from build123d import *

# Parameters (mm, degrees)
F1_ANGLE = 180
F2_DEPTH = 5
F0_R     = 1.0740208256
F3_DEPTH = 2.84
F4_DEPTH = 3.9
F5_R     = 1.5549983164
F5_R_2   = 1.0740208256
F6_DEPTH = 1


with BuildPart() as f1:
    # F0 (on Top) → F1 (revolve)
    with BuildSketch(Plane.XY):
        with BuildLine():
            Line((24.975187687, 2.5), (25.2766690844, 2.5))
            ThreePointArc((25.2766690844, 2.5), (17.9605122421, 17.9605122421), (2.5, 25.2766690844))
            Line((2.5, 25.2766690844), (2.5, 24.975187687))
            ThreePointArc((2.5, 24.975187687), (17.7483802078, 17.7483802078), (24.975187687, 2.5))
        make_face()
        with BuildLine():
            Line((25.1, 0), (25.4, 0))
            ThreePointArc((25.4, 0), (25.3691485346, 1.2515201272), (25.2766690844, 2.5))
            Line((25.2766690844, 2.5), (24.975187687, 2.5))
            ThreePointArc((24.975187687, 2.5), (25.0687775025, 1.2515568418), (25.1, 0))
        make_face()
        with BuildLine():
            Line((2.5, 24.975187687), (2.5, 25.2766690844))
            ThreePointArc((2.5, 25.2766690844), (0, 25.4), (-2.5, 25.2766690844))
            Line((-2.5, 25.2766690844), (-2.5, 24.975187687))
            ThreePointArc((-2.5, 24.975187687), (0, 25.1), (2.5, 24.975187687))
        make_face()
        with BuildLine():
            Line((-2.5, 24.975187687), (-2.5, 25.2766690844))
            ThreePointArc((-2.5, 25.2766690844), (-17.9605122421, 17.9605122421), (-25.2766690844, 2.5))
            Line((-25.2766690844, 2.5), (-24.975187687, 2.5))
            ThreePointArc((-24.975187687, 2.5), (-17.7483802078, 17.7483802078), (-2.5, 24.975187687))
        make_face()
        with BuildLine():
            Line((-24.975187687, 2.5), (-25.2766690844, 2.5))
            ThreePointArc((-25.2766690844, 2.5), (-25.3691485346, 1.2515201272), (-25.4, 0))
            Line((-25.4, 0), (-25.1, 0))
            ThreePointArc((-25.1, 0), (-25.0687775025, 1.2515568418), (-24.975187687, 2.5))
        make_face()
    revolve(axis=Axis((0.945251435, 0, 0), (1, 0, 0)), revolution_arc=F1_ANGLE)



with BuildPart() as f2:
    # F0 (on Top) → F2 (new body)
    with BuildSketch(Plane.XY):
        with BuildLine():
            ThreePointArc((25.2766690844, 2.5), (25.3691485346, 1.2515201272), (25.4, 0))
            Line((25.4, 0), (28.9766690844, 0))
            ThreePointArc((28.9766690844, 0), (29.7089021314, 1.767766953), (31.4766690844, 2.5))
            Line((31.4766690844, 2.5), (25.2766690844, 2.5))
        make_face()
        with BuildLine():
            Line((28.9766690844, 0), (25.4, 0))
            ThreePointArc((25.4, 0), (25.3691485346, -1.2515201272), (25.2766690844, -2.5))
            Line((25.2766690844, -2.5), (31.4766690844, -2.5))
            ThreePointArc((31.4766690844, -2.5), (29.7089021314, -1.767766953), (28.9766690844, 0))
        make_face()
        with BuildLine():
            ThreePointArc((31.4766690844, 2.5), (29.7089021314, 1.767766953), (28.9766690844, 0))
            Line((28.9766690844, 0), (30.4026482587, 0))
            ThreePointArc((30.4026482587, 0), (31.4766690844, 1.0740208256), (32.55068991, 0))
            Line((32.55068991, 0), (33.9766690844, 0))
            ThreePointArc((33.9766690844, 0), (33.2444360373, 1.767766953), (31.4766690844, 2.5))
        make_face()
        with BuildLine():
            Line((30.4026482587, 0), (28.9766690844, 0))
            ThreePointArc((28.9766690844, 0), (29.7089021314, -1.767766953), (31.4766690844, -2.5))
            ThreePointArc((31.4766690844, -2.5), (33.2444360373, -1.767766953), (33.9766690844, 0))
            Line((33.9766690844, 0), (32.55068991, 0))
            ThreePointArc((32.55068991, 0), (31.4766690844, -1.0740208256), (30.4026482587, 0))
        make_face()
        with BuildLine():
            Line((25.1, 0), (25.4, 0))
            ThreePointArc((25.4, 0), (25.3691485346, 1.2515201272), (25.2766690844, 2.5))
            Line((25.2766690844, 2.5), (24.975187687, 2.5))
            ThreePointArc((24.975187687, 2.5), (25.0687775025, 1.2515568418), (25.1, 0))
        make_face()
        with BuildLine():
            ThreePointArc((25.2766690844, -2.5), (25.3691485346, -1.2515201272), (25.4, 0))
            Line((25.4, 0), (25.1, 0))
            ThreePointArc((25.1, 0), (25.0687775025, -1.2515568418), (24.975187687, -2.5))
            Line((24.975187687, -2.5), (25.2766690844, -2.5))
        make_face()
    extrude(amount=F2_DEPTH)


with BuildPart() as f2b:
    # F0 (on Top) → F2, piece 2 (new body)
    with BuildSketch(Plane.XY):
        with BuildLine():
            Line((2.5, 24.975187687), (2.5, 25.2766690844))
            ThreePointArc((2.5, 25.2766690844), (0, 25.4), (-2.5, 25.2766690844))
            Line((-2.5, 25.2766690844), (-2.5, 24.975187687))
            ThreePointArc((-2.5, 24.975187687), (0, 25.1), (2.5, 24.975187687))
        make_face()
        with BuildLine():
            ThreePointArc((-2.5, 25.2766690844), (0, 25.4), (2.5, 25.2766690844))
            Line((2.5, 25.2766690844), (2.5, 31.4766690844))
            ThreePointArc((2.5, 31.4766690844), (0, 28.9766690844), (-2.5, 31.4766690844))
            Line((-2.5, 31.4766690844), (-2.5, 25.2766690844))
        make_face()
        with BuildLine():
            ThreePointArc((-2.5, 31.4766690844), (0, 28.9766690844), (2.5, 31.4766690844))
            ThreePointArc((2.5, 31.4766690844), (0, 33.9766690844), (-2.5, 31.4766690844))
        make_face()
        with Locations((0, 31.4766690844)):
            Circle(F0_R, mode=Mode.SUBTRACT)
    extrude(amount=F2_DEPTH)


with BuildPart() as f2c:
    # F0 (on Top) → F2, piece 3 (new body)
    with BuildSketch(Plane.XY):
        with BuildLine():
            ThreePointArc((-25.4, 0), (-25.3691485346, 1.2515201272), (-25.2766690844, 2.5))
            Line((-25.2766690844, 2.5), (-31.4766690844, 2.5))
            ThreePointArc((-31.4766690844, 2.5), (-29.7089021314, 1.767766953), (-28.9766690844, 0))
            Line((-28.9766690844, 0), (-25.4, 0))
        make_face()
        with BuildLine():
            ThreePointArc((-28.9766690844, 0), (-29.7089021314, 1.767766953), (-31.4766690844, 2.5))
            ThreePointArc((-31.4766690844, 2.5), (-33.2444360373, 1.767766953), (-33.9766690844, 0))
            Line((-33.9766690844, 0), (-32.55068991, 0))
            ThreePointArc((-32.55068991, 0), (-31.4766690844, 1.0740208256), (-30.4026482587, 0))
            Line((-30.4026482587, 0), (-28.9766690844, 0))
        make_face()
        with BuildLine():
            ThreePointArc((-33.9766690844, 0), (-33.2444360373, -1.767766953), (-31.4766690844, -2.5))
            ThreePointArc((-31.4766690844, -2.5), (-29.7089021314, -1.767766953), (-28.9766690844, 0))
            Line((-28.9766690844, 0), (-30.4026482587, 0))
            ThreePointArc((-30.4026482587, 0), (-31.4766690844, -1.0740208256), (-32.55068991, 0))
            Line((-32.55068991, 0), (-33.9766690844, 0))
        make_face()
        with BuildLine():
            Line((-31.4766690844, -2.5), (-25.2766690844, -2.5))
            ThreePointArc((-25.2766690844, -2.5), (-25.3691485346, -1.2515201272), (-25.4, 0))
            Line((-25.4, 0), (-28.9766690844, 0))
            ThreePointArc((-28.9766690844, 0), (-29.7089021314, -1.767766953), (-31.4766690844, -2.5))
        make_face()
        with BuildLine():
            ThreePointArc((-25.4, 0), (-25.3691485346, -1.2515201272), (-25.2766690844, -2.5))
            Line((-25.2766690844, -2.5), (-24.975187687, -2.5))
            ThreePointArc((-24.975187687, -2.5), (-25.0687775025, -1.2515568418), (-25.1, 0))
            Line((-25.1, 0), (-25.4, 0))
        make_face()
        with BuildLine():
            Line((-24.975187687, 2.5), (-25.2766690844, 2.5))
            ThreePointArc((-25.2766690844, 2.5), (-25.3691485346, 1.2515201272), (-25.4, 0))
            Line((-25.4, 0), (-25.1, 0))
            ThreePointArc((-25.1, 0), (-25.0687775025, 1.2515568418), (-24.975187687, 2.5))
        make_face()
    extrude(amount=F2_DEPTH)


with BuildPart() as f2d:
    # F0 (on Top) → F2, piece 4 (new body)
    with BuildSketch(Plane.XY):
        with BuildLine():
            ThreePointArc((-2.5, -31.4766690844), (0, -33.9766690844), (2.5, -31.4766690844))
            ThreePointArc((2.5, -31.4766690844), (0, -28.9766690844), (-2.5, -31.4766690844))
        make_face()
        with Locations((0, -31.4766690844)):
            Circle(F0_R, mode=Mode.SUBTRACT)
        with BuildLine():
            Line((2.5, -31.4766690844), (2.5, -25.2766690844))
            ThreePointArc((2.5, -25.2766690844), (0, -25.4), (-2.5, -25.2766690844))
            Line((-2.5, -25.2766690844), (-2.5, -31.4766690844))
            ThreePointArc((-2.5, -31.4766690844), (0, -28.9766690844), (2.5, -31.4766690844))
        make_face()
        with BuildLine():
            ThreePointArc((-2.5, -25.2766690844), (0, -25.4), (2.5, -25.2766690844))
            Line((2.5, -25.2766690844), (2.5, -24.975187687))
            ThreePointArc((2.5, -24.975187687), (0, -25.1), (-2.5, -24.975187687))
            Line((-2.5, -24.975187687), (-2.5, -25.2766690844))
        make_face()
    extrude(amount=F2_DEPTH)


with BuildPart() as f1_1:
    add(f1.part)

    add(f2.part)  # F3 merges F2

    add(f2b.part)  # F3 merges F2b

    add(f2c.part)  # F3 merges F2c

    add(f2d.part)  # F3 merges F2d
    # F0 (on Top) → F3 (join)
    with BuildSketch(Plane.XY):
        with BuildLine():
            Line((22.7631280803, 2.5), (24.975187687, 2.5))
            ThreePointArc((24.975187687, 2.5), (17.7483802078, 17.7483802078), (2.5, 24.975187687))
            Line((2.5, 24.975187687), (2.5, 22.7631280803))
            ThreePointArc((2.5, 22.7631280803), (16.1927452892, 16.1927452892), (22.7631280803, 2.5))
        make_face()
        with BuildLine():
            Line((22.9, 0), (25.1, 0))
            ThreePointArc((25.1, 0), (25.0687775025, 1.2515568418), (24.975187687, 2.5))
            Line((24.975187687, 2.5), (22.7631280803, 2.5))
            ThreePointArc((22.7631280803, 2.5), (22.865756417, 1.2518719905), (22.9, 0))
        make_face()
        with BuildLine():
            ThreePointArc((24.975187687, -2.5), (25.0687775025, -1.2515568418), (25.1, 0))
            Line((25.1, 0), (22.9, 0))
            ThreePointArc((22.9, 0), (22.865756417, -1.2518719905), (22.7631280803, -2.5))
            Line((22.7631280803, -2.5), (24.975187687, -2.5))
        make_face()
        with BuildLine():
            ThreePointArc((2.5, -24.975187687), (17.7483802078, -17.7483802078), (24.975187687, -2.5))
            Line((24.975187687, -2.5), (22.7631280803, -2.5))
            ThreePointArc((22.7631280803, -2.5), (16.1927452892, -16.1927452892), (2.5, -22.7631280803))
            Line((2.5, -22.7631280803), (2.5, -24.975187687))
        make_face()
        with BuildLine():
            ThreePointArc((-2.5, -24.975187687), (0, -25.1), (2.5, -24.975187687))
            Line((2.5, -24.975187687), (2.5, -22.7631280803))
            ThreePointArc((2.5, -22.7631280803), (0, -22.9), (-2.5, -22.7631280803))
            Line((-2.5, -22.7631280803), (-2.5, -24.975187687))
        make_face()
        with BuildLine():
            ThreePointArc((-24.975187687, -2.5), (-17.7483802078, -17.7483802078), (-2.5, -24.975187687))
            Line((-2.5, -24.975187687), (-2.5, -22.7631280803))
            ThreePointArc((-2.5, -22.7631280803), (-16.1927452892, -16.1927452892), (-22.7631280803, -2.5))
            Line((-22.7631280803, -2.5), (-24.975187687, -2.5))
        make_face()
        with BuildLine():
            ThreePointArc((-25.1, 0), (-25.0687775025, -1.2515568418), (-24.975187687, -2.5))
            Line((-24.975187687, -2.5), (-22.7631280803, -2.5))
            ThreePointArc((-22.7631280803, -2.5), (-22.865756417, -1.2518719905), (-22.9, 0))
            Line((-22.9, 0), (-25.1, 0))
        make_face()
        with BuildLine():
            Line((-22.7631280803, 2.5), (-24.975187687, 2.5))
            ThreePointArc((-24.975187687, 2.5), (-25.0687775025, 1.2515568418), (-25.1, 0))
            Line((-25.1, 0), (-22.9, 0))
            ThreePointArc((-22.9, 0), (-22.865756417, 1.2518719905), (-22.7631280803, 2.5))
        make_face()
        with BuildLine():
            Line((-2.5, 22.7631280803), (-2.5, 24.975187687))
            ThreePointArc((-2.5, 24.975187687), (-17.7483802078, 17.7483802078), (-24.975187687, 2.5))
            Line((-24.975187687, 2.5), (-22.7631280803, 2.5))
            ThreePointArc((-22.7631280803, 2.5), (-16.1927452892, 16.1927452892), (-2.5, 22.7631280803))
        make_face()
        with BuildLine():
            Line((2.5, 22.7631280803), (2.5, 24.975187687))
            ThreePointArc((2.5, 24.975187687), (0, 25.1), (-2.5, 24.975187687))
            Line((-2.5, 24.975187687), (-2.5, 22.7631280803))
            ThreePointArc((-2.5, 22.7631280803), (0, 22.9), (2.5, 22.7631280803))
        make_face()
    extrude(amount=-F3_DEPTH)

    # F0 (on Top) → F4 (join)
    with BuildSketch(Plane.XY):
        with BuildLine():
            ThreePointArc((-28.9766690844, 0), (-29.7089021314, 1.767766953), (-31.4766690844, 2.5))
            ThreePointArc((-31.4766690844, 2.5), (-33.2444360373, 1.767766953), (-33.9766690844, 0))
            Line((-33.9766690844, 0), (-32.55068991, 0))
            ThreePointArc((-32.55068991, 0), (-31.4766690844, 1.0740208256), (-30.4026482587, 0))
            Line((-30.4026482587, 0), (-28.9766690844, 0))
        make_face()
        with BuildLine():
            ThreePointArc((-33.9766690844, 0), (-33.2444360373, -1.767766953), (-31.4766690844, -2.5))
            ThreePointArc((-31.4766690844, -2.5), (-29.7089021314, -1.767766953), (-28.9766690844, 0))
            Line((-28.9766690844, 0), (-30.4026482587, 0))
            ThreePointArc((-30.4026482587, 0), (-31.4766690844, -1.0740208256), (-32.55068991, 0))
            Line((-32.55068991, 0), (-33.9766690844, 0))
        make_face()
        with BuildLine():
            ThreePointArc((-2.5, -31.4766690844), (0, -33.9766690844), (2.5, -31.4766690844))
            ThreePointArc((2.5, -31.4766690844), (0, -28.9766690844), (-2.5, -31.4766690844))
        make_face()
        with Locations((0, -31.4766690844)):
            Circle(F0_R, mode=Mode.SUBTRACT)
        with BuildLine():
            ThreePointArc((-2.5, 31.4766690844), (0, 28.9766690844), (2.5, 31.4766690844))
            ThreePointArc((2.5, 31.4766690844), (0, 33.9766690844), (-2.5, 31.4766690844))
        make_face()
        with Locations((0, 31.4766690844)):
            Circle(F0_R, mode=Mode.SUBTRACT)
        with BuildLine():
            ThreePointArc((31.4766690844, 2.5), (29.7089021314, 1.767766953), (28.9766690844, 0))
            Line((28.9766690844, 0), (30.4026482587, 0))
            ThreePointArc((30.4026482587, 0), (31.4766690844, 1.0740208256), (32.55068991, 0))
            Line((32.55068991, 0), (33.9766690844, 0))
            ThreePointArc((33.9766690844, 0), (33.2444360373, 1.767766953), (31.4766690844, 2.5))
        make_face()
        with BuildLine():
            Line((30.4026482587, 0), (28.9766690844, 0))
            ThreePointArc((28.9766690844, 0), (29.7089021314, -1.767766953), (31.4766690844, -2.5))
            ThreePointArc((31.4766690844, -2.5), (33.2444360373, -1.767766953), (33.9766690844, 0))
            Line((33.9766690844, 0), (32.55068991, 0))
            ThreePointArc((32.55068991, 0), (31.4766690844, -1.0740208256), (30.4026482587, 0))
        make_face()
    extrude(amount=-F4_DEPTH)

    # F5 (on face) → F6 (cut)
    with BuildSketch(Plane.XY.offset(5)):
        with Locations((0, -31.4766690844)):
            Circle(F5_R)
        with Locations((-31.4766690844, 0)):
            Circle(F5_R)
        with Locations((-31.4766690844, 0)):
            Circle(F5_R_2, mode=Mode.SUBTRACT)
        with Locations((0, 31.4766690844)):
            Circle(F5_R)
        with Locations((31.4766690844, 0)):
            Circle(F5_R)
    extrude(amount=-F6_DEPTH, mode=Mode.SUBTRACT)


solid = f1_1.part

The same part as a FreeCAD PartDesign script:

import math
import FreeCAD as App
import Part
import Sketcher
from FreeCAD import Vector
Q = App.Units.Quantity

doc = App.newDocument("Part")
body = doc.addObject("PartDesign::Body", "Body")

# Sketch on XY plane
sketch1 = body.newObject("Sketcher::SketchObject", "Sketch")
sketch1.AttachmentSupport = (doc.getObject("XY_Plane"), [""])
sketch1.MapMode = "FlatFace"
sketch1.addGeometry(Part.ArcOfCircle(Part.Circle(Vector(0, 0, 0), Vector(0, 0, 1), 25.4), math.radians(6), math.radians(84)), False)
sketch1.addGeometry(Part.ArcOfCircle(Part.Circle(Vector(0, 0, 0), Vector(0, 0, 1), 25.4), math.radians(84.35), math.radians(95.65)), False)
sketch1.addGeometry(Part.ArcOfCircle(Part.Circle(Vector(0, 0, 0), Vector(0, 0, 1), 25.4), math.radians(96), math.radians(174)), False)
sketch1.addGeometry(Part.ArcOfCircle(Part.Circle(Vector(0, 0, 0), Vector(0, 0, 1), 25.4), math.radians(174.35), math.radians(180)), False)
sketch1.addGeometry(Part.LineSegment(Vector(-25.4, 0, 0), Vector(-25.1, 0, 0)), False)
sketch1.addGeometry(Part.ArcOfCircle(Part.Circle(Vector(0, 0, 0), Vector(0, 0, 1), 25.1), math.radians(174.28), math.radians(180)), False)
sketch1.addGeometry(Part.ArcOfCircle(Part.Circle(Vector(0, 0, 0), Vector(0, 0, 1), 25.1), math.radians(96), math.radians(174)), False)
sketch1.addGeometry(Part.ArcOfCircle(Part.Circle(Vector(0, 0, 0), Vector(0, 0, 1), 25.1), math.radians(84.28), math.radians(95.72)), False)
sketch1.addGeometry(Part.ArcOfCircle(Part.Circle(Vector(0, 0, 0), Vector(0, 0, 1), 25.1), math.radians(6), math.radians(84)), False)
sketch1.addGeometry(Part.ArcOfCircle(Part.Circle(Vector(0, 0, 0), Vector(0, 0, 1), 25.1), math.radians(0), math.radians(5.72)), False)
sketch1.addGeometry(Part.LineSegment(Vector(25.1, 0, 0), Vector(25.4, 0, 0)), False)
sketch1.addGeometry(Part.ArcOfCircle(Part.Circle(Vector(0, 0, 0), Vector(0, 0, 1), 25.4), math.radians(0), math.radians(5.65)), False)
sketch1.addConstraint(Sketcher.Constraint("Tangent", 0, 2, 1, 1))
sketch1.addConstraint(Sketcher.Constraint("Tangent", 1, 2, 2, 1))
sketch1.addConstraint(Sketcher.Constraint("Tangent", 2, 2, 3, 1))
sketch1.addConstraint(Sketcher.Constraint("Coincident", 3, 2, 4, 1))
sketch1.addConstraint(Sketcher.Constraint("Coincident", 4, 2, 5, 2))
sketch1.addConstraint(Sketcher.Constraint("Tangent", 5, 1, 6, 2))
sketch1.addConstraint(Sketcher.Constraint("Tangent", 6, 1, 7, 2))
sketch1.addConstraint(Sketcher.Constraint("Tangent", 7, 1, 8, 2))
sketch1.addConstraint(Sketcher.Constraint("Tangent", 8, 1, 9, 2))
sketch1.addConstraint(Sketcher.Constraint("Coincident", 9, 1, 10, 1))
sketch1.addConstraint(Sketcher.Constraint("Coincident", 10, 2, 11, 1))
sketch1.addConstraint(Sketcher.Constraint("Tangent", 11, 2, 0, 1))
sketch1.addConstraint(Sketcher.Constraint("Horizontal", 4))
sketch1.addConstraint(Sketcher.Constraint("Horizontal", 10))
sketch1.addConstraint(Sketcher.Constraint("Coincident", 0, 3, -1, 1))
sketch1.addConstraint(Sketcher.Constraint("Coincident", 2, 3, -1, 1))
sketch1.addConstraint(Sketcher.Constraint("Coincident", 5, 3, -1, 1))
sketch1.addConstraint(Sketcher.Constraint("Coincident", 7, 3, -1, 1))
sketch1.addConstraint(Sketcher.Constraint("Coincident", 9, 3, -1, 1))
sketch1.addConstraint(Sketcher.Constraint("Equal", 2, 3))
sketch1.addConstraint(Sketcher.Constraint("Equal", 3, 11))
sketch1.addConstraint(Sketcher.Constraint("PointOnObject", 3, 2, -1))
sketch1.addConstraint(Sketcher.Constraint("PointOnObject", 9, 1, -1))
sketch1.addConstraint(Sketcher.Constraint("Horizontal", 0, 2, 1, 2))
sketch1.addConstraint(Sketcher.Constraint("Horizontal", 2, 2, 5, 1))
sketch1.addConstraint(Sketcher.Constraint("Horizontal", 6, 1, 7, 1))
sketch1.addConstraint(Sketcher.Constraint("Horizontal", 5, 1, 8, 1))
sketch1.addConstraint(Sketcher.Constraint("Horizontal", 8, 1, 11, 2))
sketch1.addConstraint(Sketcher.Constraint("Vertical", 1, 2, 6, 1))
sketch1.addConstraint(Sketcher.Constraint("Radius", 0, Q("25.4 mm")))
sketch1.addConstraint(Sketcher.Constraint("Radius", 5, Q("25.1 mm")))
sketch1.addConstraint(Sketcher.Constraint("DistanceX", 1, 2, 0, 2, Q("5 mm")))
sketch1.addConstraint(Sketcher.Constraint("DistanceY", -1, 1, 2, 2, Q("2.5 mm")))
revolution = body.newObject("PartDesign::Revolution", "Revolution")
revolution.Profile = sketch1
revolution.ReferenceAxis = (sketch1, ["H_Axis"])
revolution.Angle = 180
body2 = doc.addObject("PartDesign::Body", "Body001")

# Sketch on XY plane
sketch2 = body2.newObject("Sketcher::SketchObject", "Sketch001")
sketch2.AttachmentSupport = (doc.getObject("XY_Plane001"), [""])
sketch2.MapMode = "FlatFace"
sketch2.addGeometry(Part.ArcOfCircle(Part.Circle(Vector(31.5, 0, 0), Vector(0, 0, 1), 2.5), math.radians(-90), math.radians(0)), False)
sketch2.addGeometry(Part.ArcOfCircle(Part.Circle(Vector(31.5, 0, 0), Vector(0, 0, 1), 2.5), math.radians(0), math.radians(90)), False)
sketch2.addGeometry(Part.LineSegment(Vector(31.5, 2.5, 0), Vector(25, 2.5, 0)), False)
sketch2.addGeometry(Part.ArcOfCircle(Part.Circle(Vector(0, 0, 0), Vector(0, 0, 1), 25.1), math.radians(0), math.radians(5.72)), False)
sketch2.addGeometry(Part.ArcOfCircle(Part.Circle(Vector(0, 0, 0), Vector(0, 0, 1), 25.1), math.radians(-5.72), math.radians(0)), False)
sketch2.addGeometry(Part.LineSegment(Vector(25, -2.5, 0), Vector(31.5, -2.5, 0)), False)
sketch2.addGeometry(Part.ArcOfCircle(Part.Circle(Vector(31.5, 0, 0), Vector(0, 0, 1), 1.1), math.radians(0), math.radians(180)), False)
sketch2.addGeometry(Part.ArcOfCircle(Part.Circle(Vector(31.5, 0, 0), Vector(0, 0, 1), 1.1), math.radians(180), math.radians(360)), False)
sketch2.addConstraint(Sketcher.Constraint("Tangent", 0, 2, 1, 1))
sketch2.addConstraint(Sketcher.Constraint("Tangent", 1, 2, 2, 1))
sketch2.addConstraint(Sketcher.Constraint("Coincident", 2, 2, 3, 2))
sketch2.addConstraint(Sketcher.Constraint("Tangent", 3, 1, 4, 2))
sketch2.addConstraint(Sketcher.Constraint("Coincident", 4, 1, 5, 1))
sketch2.addConstraint(Sketcher.Constraint("Tangent", 5, 2, 0, 1))
sketch2.addConstraint(Sketcher.Constraint("Tangent", 6, 1, 7, 2))
sketch2.addConstraint(Sketcher.Constraint("Coincident", 7, 1, 6, 2))
sketch2.addConstraint(Sketcher.Constraint("Horizontal", 2))
sketch2.addConstraint(Sketcher.Constraint("Horizontal", 5))
sketch2.addConstraint(Sketcher.Constraint("Coincident", 3, 3, -1, 1))
sketch2.addConstraint(Sketcher.Constraint("Coincident", 6, 3, 0, 3))
sketch2.addConstraint(Sketcher.Constraint("Equal", 0, 1))
sketch2.addConstraint(Sketcher.Constraint("Equal", 3, 4))
sketch2.addConstraint(Sketcher.Constraint("PointOnObject", 0, 3, -1))
sketch2.addConstraint(Sketcher.Constraint("PointOnObject", 0, 2, -1))
sketch2.addConstraint(Sketcher.Constraint("PointOnObject", 3, 1, -1))
sketch2.addConstraint(Sketcher.Constraint("PointOnObject", 6, 1, -1))
sketch2.addConstraint(Sketcher.Constraint("PointOnObject", 7, 1, -1))
sketch2.addConstraint(Sketcher.Constraint("Radius", 0, Q("2.5 mm")))
sketch2.addConstraint(Sketcher.Constraint("Radius", 3, Q("25.1 mm")))
sketch2.addConstraint(Sketcher.Constraint("Radius", 6, Q("1.074021 mm")))
sketch2.addConstraint(Sketcher.Constraint("DistanceX", 2, 2, 2, 1, Q("6.501481 mm")))
pad1 = body2.newObject("PartDesign::Pad", "Pad")
pad1.Profile = sketch2
pad1.Length = 5
body3 = doc.addObject("PartDesign::Body", "Body002")

# Sketch on XY plane
sketch3 = body3.newObject("Sketcher::SketchObject", "Sketch002")
sketch3.AttachmentSupport = (doc.getObject("XY_Plane002"), [""])
sketch3.MapMode = "FlatFace"
sketch3.addGeometry(Part.LineSegment(Vector(2.5, 25, 0), Vector(2.5, 31.5, 0)), False)
sketch3.addGeometry(Part.ArcOfCircle(Part.Circle(Vector(0, 31.5, 0), Vector(0, 0, 1), 2.5), math.radians(0), math.radians(180)), False)
sketch3.addGeometry(Part.LineSegment(Vector(-2.5, 31.5, 0), Vector(-2.5, 25, 0)), False)
sketch3.addGeometry(Part.ArcOfCircle(Part.Circle(Vector(0, 0, 0), Vector(0, 0, 1), 25.1), math.radians(84.28), math.radians(95.72)), False)
sketch3.addGeometry(Part.Circle(Vector(0, 31.5, 0), Vector(0, 0, 1), 1.1), False)
sketch3.addConstraint(Sketcher.Constraint("Tangent", 0, 2, 1, 1))
sketch3.addConstraint(Sketcher.Constraint("Tangent", 1, 2, 2, 1))
sketch3.addConstraint(Sketcher.Constraint("Coincident", 2, 2, 3, 2))
sketch3.addConstraint(Sketcher.Constraint("Coincident", 3, 1, 0, 1))
sketch3.addConstraint(Sketcher.Constraint("Vertical", 0))
sketch3.addConstraint(Sketcher.Constraint("Vertical", 2))
sketch3.addConstraint(Sketcher.Constraint("Coincident", 3, 3, -1, 1))
sketch3.addConstraint(Sketcher.Constraint("Coincident", 4, 3, 1, 3))
sketch3.addConstraint(Sketcher.Constraint("PointOnObject", 1, 3, -2))
sketch3.addConstraint(Sketcher.Constraint("Radius", 1, Q("2.5 mm")))
sketch3.addConstraint(Sketcher.Constraint("Radius", 3, Q("25.1 mm")))
sketch3.addConstraint(Sketcher.Constraint("Diameter", 4, Q("2.148042 mm")))
sketch3.addConstraint(Sketcher.Constraint("DistanceY", 0, 1, 0, 2, Q("6.501481 mm")))
pad2 = body3.newObject("PartDesign::Pad", "Pad001")
pad2.Profile = sketch3
pad2.Length = 5
body4 = doc.addObject("PartDesign::Body", "Body003")

# Sketch on XY plane
sketch4 = body4.newObject("Sketcher::SketchObject", "Sketch003")
sketch4.AttachmentSupport = (doc.getObject("XY_Plane003"), [""])
sketch4.MapMode = "FlatFace"
sketch4.addGeometry(Part.ArcOfCircle(Part.Circle(Vector(-31.5, 0, 0), Vector(0, 0, 1), 2.5), math.radians(90), math.radians(180)), False)
sketch4.addGeometry(Part.ArcOfCircle(Part.Circle(Vector(-31.5, 0, 0), Vector(0, 0, 1), 2.5), math.radians(180), math.radians(270)), False)
sketch4.addGeometry(Part.LineSegment(Vector(-31.5, -2.5, 0), Vector(-25, -2.5, 0)), False)
sketch4.addGeometry(Part.ArcOfCircle(Part.Circle(Vector(0, 0, 0), Vector(0, 0, 1), 25.1), math.radians(-180), math.radians(-174.28)), False)
sketch4.addGeometry(Part.ArcOfCircle(Part.Circle(Vector(0, 0, 0), Vector(0, 0, 1), 25.1), math.radians(174.28), math.radians(180)), False)
sketch4.addGeometry(Part.LineSegment(Vector(-25, 2.5, 0), Vector(-31.5, 2.5, 0)), False)
sketch4.addGeometry(Part.ArcOfCircle(Part.Circle(Vector(-31.5, 0, 0), Vector(0, 0, 1), 1.1), math.radians(0), math.radians(180)), False)
sketch4.addGeometry(Part.ArcOfCircle(Part.Circle(Vector(-31.5, 0, 0), Vector(0, 0, 1), 1.1), math.radians(180), math.radians(360)), False)
sketch4.addConstraint(Sketcher.Constraint("Tangent", 0, 2, 1, 1))
sketch4.addConstraint(Sketcher.Constraint("Tangent", 1, 2, 2, 1))
sketch4.addConstraint(Sketcher.Constraint("Coincident", 2, 2, 3, 2))
sketch4.addConstraint(Sketcher.Constraint("Tangent", 3, 1, 4, 2))
sketch4.addConstraint(Sketcher.Constraint("Coincident", 4, 1, 5, 1))
sketch4.addConstraint(Sketcher.Constraint("Tangent", 5, 2, 0, 1))
sketch4.addConstraint(Sketcher.Constraint("Tangent", 6, 1, 7, 2))
sketch4.addConstraint(Sketcher.Constraint("Coincident", 7, 1, 6, 2))
sketch4.addConstraint(Sketcher.Constraint("Horizontal", 2))
sketch4.addConstraint(Sketcher.Constraint("Horizontal", 5))
sketch4.addConstraint(Sketcher.Constraint("Coincident", 3, 3, -1, 1))
sketch4.addConstraint(Sketcher.Constraint("Coincident", 6, 3, 0, 3))
sketch4.addConstraint(Sketcher.Constraint("Equal", 0, 1))
sketch4.addConstraint(Sketcher.Constraint("Equal", 3, 4))
sketch4.addConstraint(Sketcher.Constraint("PointOnObject", 0, 3, -1))
sketch4.addConstraint(Sketcher.Constraint("PointOnObject", 0, 2, -1))
sketch4.addConstraint(Sketcher.Constraint("PointOnObject", 3, 1, -1))
sketch4.addConstraint(Sketcher.Constraint("PointOnObject", 6, 1, -1))
sketch4.addConstraint(Sketcher.Constraint("PointOnObject", 7, 1, -1))
sketch4.addConstraint(Sketcher.Constraint("Radius", 0, Q("2.5 mm")))
sketch4.addConstraint(Sketcher.Constraint("Radius", 3, Q("25.1 mm")))
sketch4.addConstraint(Sketcher.Constraint("Radius", 6, Q("1.074021 mm")))
sketch4.addConstraint(Sketcher.Constraint("DistanceX", 2, 1, 2, 2, Q("6.501481 mm")))
pad3 = body4.newObject("PartDesign::Pad", "Pad002")
pad3.Profile = sketch4
pad3.Length = 5
body5 = doc.addObject("PartDesign::Body", "Body004")

# Sketch on XY plane
sketch5 = body5.newObject("Sketcher::SketchObject", "Sketch004")
sketch5.AttachmentSupport = (doc.getObject("XY_Plane004"), [""])
sketch5.MapMode = "FlatFace"
sketch5.addGeometry(Part.ArcOfCircle(Part.Circle(Vector(0, -31.5, 0), Vector(0, 0, 1), 2.5), math.radians(180), math.radians(360)), False)
sketch5.addGeometry(Part.LineSegment(Vector(2.5, -31.5, 0), Vector(2.5, -25, 0)), False)
sketch5.addGeometry(Part.ArcOfCircle(Part.Circle(Vector(0, 0, 0), Vector(0, 0, 1), 25.1), math.radians(-95.72), math.radians(-84.28)), False)
sketch5.addGeometry(Part.LineSegment(Vector(-2.5, -25, 0), Vector(-2.5, -31.5, 0)), False)
sketch5.addGeometry(Part.Circle(Vector(0, -31.5, 0), Vector(0, 0, 1), 1.1), False)
sketch5.addConstraint(Sketcher.Constraint("Tangent", 0, 2, 1, 1))
sketch5.addConstraint(Sketcher.Constraint("Coincident", 1, 2, 2, 2))
sketch5.addConstraint(Sketcher.Constraint("Coincident", 2, 1, 3, 1))
sketch5.addConstraint(Sketcher.Constraint("Tangent", 3, 2, 0, 1))
sketch5.addConstraint(Sketcher.Constraint("Vertical", 1))
sketch5.addConstraint(Sketcher.Constraint("Vertical", 3))
sketch5.addConstraint(Sketcher.Constraint("Coincident", 2, 3, -1, 1))
sketch5.addConstraint(Sketcher.Constraint("Coincident", 4, 3, 0, 3))
sketch5.addConstraint(Sketcher.Constraint("PointOnObject", 0, 3, -2))
sketch5.addConstraint(Sketcher.Constraint("Radius", 0, Q("2.5 mm")))
sketch5.addConstraint(Sketcher.Constraint("Radius", 2, Q("25.1 mm")))
sketch5.addConstraint(Sketcher.Constraint("Diameter", 4, Q("2.148042 mm")))
sketch5.addConstraint(Sketcher.Constraint("DistanceY", 1, 1, 1, 2, Q("6.501481 mm")))
pad4 = body5.newObject("PartDesign::Pad", "Pad003")
pad4.Profile = sketch5
pad4.Length = 5
body.AllowCompound = True
doc.recompute()

boolean = body.newObject("PartDesign::Boolean", "Boolean")
boolean.Type = "Fuse"
boolean.addObjects([body2])
doc.recompute()

boolean2 = body.newObject("PartDesign::Boolean", "Boolean001")
boolean2.Type = "Fuse"
boolean2.addObjects([body3])
doc.recompute()

boolean3 = body.newObject("PartDesign::Boolean", "Boolean002")
boolean3.Type = "Fuse"
boolean3.addObjects([body4])
doc.recompute()

boolean4 = body.newObject("PartDesign::Boolean", "Boolean003")
boolean4.Type = "Fuse"
boolean4.addObjects([body5])

# Sketch on XY plane
sketch6 = body.newObject("Sketcher::SketchObject", "Sketch005")
sketch6.AttachmentSupport = (doc.getObject("XY_Plane"), [""])
sketch6.MapMode = "FlatFace"
sketch6.addGeometry(Part.ArcOfCircle(Part.Circle(Vector(0, 0, 0), Vector(0, 0, 1), 25.1), math.radians(6), math.radians(84)), False)
sketch6.addGeometry(Part.ArcOfCircle(Part.Circle(Vector(0, 0, 0), Vector(0, 0, 1), 25.1), math.radians(84.28), math.radians(95.72)), False)
sketch6.addGeometry(Part.ArcOfCircle(Part.Circle(Vector(0, 0, 0), Vector(0, 0, 1), 25.1), math.radians(96), math.radians(174)), False)
sketch6.addGeometry(Part.ArcOfCircle(Part.Circle(Vector(0, 0, 0), Vector(0, 0, 1), 25.1), math.radians(174.28), math.radians(180)), False)
sketch6.addGeometry(Part.ArcOfCircle(Part.Circle(Vector(0, 0, 0), Vector(0, 0, 1), 25.1), math.radians(-180), math.radians(-174.28)), False)
sketch6.addGeometry(Part.ArcOfCircle(Part.Circle(Vector(0, 0, 0), Vector(0, 0, 1), 25.1), math.radians(-174), math.radians(-96)), False)
sketch6.addGeometry(Part.ArcOfCircle(Part.Circle(Vector(0, 0, 0), Vector(0, 0, 1), 25.1), math.radians(-95.72), math.radians(-84.28)), False)
sketch6.addGeometry(Part.ArcOfCircle(Part.Circle(Vector(0, 0, 0), Vector(0, 0, 1), 25.1), math.radians(-84), math.radians(-6)), False)
sketch6.addGeometry(Part.ArcOfCircle(Part.Circle(Vector(0, 0, 0), Vector(0, 0, 1), 25.1), math.radians(-5.72), math.radians(0)), False)
sketch6.addGeometry(Part.ArcOfCircle(Part.Circle(Vector(0, 0, 0), Vector(0, 0, 1), 25.1), math.radians(0), math.radians(5.72)), False)
sketch6.addGeometry(Part.ArcOfCircle(Part.Circle(Vector(0, 0, 0), Vector(0, 0, 1), 22.9), math.radians(6), math.radians(84)), False)
sketch6.addGeometry(Part.ArcOfCircle(Part.Circle(Vector(0, 0, 0), Vector(0, 0, 1), 22.9), math.radians(0), math.radians(6.27)), False)
sketch6.addGeometry(Part.ArcOfCircle(Part.Circle(Vector(0, 0, 0), Vector(0, 0, 1), 22.9), math.radians(-6.27), math.radians(0)), False)
sketch6.addGeometry(Part.ArcOfCircle(Part.Circle(Vector(0, 0, 0), Vector(0, 0, 1), 22.9), math.radians(-84), math.radians(-6)), False)
sketch6.addGeometry(Part.ArcOfCircle(Part.Circle(Vector(0, 0, 0), Vector(0, 0, 1), 22.9), math.radians(-96.27), math.radians(-83.73)), False)
sketch6.addGeometry(Part.ArcOfCircle(Part.Circle(Vector(0, 0, 0), Vector(0, 0, 1), 22.9), math.radians(-174), math.radians(-96)), False)
sketch6.addGeometry(Part.ArcOfCircle(Part.Circle(Vector(0, 0, 0), Vector(0, 0, 1), 22.9), math.radians(180), math.radians(186.27)), False)
sketch6.addGeometry(Part.ArcOfCircle(Part.Circle(Vector(0, 0, 0), Vector(0, 0, 1), 22.9), math.radians(173.73), math.radians(180)), False)
sketch6.addGeometry(Part.ArcOfCircle(Part.Circle(Vector(0, 0, 0), Vector(0, 0, 1), 22.9), math.radians(96), math.radians(174)), False)
sketch6.addGeometry(Part.ArcOfCircle(Part.Circle(Vector(0, 0, 0), Vector(0, 0, 1), 22.9), math.radians(83.73), math.radians(96.27)), False)
sketch6.addConstraint(Sketcher.Constraint("Tangent", 0, 2, 1, 1))
sketch6.addConstraint(Sketcher.Constraint("Tangent", 1, 2, 2, 1))
sketch6.addConstraint(Sketcher.Constraint("Tangent", 2, 2, 3, 1))
sketch6.addConstraint(Sketcher.Constraint("Tangent", 3, 2, 4, 1))
sketch6.addConstraint(Sketcher.Constraint("Tangent", 4, 2, 5, 1))
sketch6.addConstraint(Sketcher.Constraint("Tangent", 5, 2, 6, 1))
sketch6.addConstraint(Sketcher.Constraint("Tangent", 6, 2, 7, 1))
sketch6.addConstraint(Sketcher.Constraint("Tangent", 7, 2, 8, 1))
sketch6.addConstraint(Sketcher.Constraint("Tangent", 8, 2, 9, 1))
sketch6.addConstraint(Sketcher.Constraint("Tangent", 9, 2, 0, 1))
sketch6.addConstraint(Sketcher.Constraint("Tangent", 10, 1, 11, 2))
sketch6.addConstraint(Sketcher.Constraint("Tangent", 11, 1, 12, 2))
sketch6.addConstraint(Sketcher.Constraint("Tangent", 12, 1, 13, 2))
sketch6.addConstraint(Sketcher.Constraint("Tangent", 13, 1, 14, 2))
sketch6.addConstraint(Sketcher.Constraint("Tangent", 14, 1, 15, 2))
sketch6.addConstraint(Sketcher.Constraint("Tangent", 15, 1, 16, 2))
sketch6.addConstraint(Sketcher.Constraint("Tangent", 16, 1, 17, 2))
sketch6.addConstraint(Sketcher.Constraint("Tangent", 17, 1, 18, 2))
sketch6.addConstraint(Sketcher.Constraint("Tangent", 18, 1, 19, 2))
sketch6.addConstraint(Sketcher.Constraint("Tangent", 19, 1, 10, 2))
sketch6.addConstraint(Sketcher.Constraint("Coincident", 0, 3, -1, 1))
sketch6.addConstraint(Sketcher.Constraint("Coincident", 2, 3, -1, 1))
sketch6.addConstraint(Sketcher.Constraint("Coincident", 4, 3, -1, 1))
sketch6.addConstraint(Sketcher.Constraint("Coincident", 6, 3, -1, 1))
sketch6.addConstraint(Sketcher.Constraint("Coincident", 10, 3, -1, 1))
sketch6.addConstraint(Sketcher.Constraint("Coincident", 12, 3, -1, 1))
sketch6.addConstraint(Sketcher.Constraint("Coincident", 14, 3, -1, 1))
sketch6.addConstraint(Sketcher.Constraint("Coincident", 16, 3, -1, 1))
sketch6.addConstraint(Sketcher.Constraint("Equal", 6, 7))
sketch6.addConstraint(Sketcher.Constraint("Equal", 16, 17))
sketch6.addConstraint(Sketcher.Constraint("PointOnObject", 3, 2, -1))
sketch6.addConstraint(Sketcher.Constraint("PointOnObject", 8, 2, -1))
sketch6.addConstraint(Sketcher.Constraint("PointOnObject", 11, 1, -1))
sketch6.addConstraint(Sketcher.Constraint("PointOnObject", 16, 1, -1))
sketch6.addConstraint(Sketcher.Constraint("Horizontal", 0, 2, 1, 2))
sketch6.addConstraint(Sketcher.Constraint("Horizontal", 5, 2, 6, 2))
sketch6.addConstraint(Sketcher.Constraint("Horizontal", 4, 2, 7, 2))
sketch6.addConstraint(Sketcher.Constraint("Horizontal", 2, 2, 9, 2))
sketch6.addConstraint(Sketcher.Constraint("Horizontal", 9, 2, 10, 1))
sketch6.addConstraint(Sketcher.Constraint("Horizontal", 7, 2, 12, 1))
sketch6.addConstraint(Sketcher.Constraint("Horizontal", 13, 1, 14, 1))
sketch6.addConstraint(Sketcher.Constraint("Horizontal", 12, 1, 15, 1))
sketch6.addConstraint(Sketcher.Constraint("Horizontal", 10, 1, 17, 1))
sketch6.addConstraint(Sketcher.Constraint("Horizontal", 18, 1, 19, 1))
sketch6.addConstraint(Sketcher.Constraint("Vertical", 2, 2, 4, 2))
sketch6.addConstraint(Sketcher.Constraint("Vertical", 1, 2, 5, 2))
sketch6.addConstraint(Sketcher.Constraint("Vertical", 6, 2, 13, 1))
sketch6.addConstraint(Sketcher.Constraint("Vertical", 14, 1, 18, 1))
sketch6.addConstraint(Sketcher.Constraint("Radius", 0, Q("25.1 mm")))
sketch6.addConstraint(Sketcher.Constraint("Radius", 10, Q("22.9 mm")))
sketch6.addConstraint(Sketcher.Constraint("DistanceX", 1, 2, 0, 2, Q("5 mm")))
sketch6.addConstraint(Sketcher.Constraint("DistanceY", 4, 2, 2, 2, Q("5 mm")))
pad5 = body.newObject("PartDesign::Pad", "Pad004")
pad5.Profile = sketch6
pad5.Length = 2.84
pad5.Reversed = True

# Sketch on XY plane
sketch7 = body.newObject("Sketcher::SketchObject", "Sketch006")
sketch7.AttachmentSupport = (doc.getObject("XY_Plane"), [""])
sketch7.MapMode = "FlatFace"
sketch7.addGeometry(Part.ArcOfCircle(Part.Circle(Vector(-31.5, 0, 0), Vector(0, 0, 1), 2.5), math.radians(0), math.radians(90)), False)
sketch7.addGeometry(Part.ArcOfCircle(Part.Circle(Vector(-31.5, 0, 0), Vector(0, 0, 1), 2.5), math.radians(90), math.radians(180)), False)
sketch7.addGeometry(Part.ArcOfCircle(Part.Circle(Vector(-31.5, 0, 0), Vector(0, 0, 1), 2.5), math.radians(180), math.radians(270)), False)
sketch7.addGeometry(Part.ArcOfCircle(Part.Circle(Vector(-31.5, 0, 0), Vector(0, 0, 1), 2.5), math.radians(-90), math.radians(0)), False)
sketch7.addGeometry(Part.ArcOfCircle(Part.Circle(Vector(-31.5, 0, 0), Vector(0, 0, 1), 1.1), math.radians(0), math.radians(180)), False)
sketch7.addGeometry(Part.ArcOfCircle(Part.Circle(Vector(-31.5, 0, 0), Vector(0, 0, 1), 1.1), math.radians(180), math.radians(360)), False)
sketch7.addGeometry(Part.Circle(Vector(0, -31.5, 0), Vector(0, 0, 1), 2.5), False)
sketch7.addGeometry(Part.Circle(Vector(0, -31.5, 0), Vector(0, 0, 1), 1.1), False)
sketch7.addGeometry(Part.Circle(Vector(0, 31.5, 0), Vector(0, 0, 1), 2.5), False)
sketch7.addGeometry(Part.Circle(Vector(0, 31.5, 0), Vector(0, 0, 1), 1.1), False)
sketch7.addGeometry(Part.ArcOfCircle(Part.Circle(Vector(31.5, 0, 0), Vector(0, 0, 1), 2.5), math.radians(90), math.radians(180)), False)
sketch7.addGeometry(Part.ArcOfCircle(Part.Circle(Vector(31.5, 0, 0), Vector(0, 0, 1), 2.5), math.radians(180), math.radians(270)), False)
sketch7.addGeometry(Part.ArcOfCircle(Part.Circle(Vector(31.5, 0, 0), Vector(0, 0, 1), 2.5), math.radians(-90), math.radians(0)), False)
sketch7.addGeometry(Part.ArcOfCircle(Part.Circle(Vector(31.5, 0, 0), Vector(0, 0, 1), 2.5), math.radians(0), math.radians(90)), False)
sketch7.addGeometry(Part.ArcOfCircle(Part.Circle(Vector(31.5, 0, 0), Vector(0, 0, 1), 1.1), math.radians(0), math.radians(180)), False)
sketch7.addGeometry(Part.ArcOfCircle(Part.Circle(Vector(31.5, 0, 0), Vector(0, 0, 1), 1.1), math.radians(180), math.radians(360)), False)
sketch7.addConstraint(Sketcher.Constraint("Tangent", 0, 2, 1, 1))
sketch7.addConstraint(Sketcher.Constraint("Tangent", 1, 2, 2, 1))
sketch7.addConstraint(Sketcher.Constraint("Tangent", 2, 2, 3, 1))
sketch7.addConstraint(Sketcher.Constraint("Tangent", 3, 2, 0, 1))
sketch7.addConstraint(Sketcher.Constraint("Tangent", 4, 1, 5, 2))
sketch7.addConstraint(Sketcher.Constraint("Coincident", 5, 1, 4, 2))
sketch7.addConstraint(Sketcher.Constraint("Tangent", 10, 2, 11, 1))
sketch7.addConstraint(Sketcher.Constraint("Tangent", 11, 2, 12, 1))
sketch7.addConstraint(Sketcher.Constraint("Tangent", 12, 2, 13, 1))
sketch7.addConstraint(Sketcher.Constraint("Tangent", 13, 2, 10, 1))
sketch7.addConstraint(Sketcher.Constraint("Tangent", 14, 1, 15, 2))
sketch7.addConstraint(Sketcher.Constraint("Coincident", 15, 1, 14, 2))
sketch7.addConstraint(Sketcher.Constraint("Coincident", 4, 3, 0, 3))
sketch7.addConstraint(Sketcher.Constraint("Coincident", 7, 3, 6, 3))
sketch7.addConstraint(Sketcher.Constraint("Coincident", 9, 3, 8, 3))
sketch7.addConstraint(Sketcher.Constraint("Coincident", 14, 3, 10, 3))
sketch7.addConstraint(Sketcher.Constraint("Equal", 0, 1))
sketch7.addConstraint(Sketcher.Constraint("Equal", 3, 6))
sketch7.addConstraint(Sketcher.Constraint("Equal", 5, 7))
sketch7.addConstraint(Sketcher.Constraint("Equal", 6, 8))
sketch7.addConstraint(Sketcher.Constraint("Equal", 7, 9))
sketch7.addConstraint(Sketcher.Constraint("Equal", 8, 10))
sketch7.addConstraint(Sketcher.Constraint("Equal", 10, 11))
sketch7.addConstraint(Sketcher.Constraint("Equal", 9, 14))
sketch7.addConstraint(Sketcher.Constraint("Symmetric", 6, 3, 8, 3, -1, 1))
sketch7.addConstraint(Sketcher.Constraint("Symmetric", 0, 3, 10, 3, -1, 1))
sketch7.addConstraint(Sketcher.Constraint("Symmetric", 2, 2, 11, 2, -2))
sketch7.addConstraint(Sketcher.Constraint("PointOnObject", 6, 3, -2))
sketch7.addConstraint(Sketcher.Constraint("PointOnObject", 1, 2, -1))
sketch7.addConstraint(Sketcher.Constraint("PointOnObject", 3, 2, -1))
sketch7.addConstraint(Sketcher.Constraint("PointOnObject", 4, 1, -1))
sketch7.addConstraint(Sketcher.Constraint("PointOnObject", 5, 1, -1))
sketch7.addConstraint(Sketcher.Constraint("PointOnObject", 10, 2, -1))
sketch7.addConstraint(Sketcher.Constraint("PointOnObject", 12, 2, -1))
sketch7.addConstraint(Sketcher.Constraint("PointOnObject", 14, 1, -1))
sketch7.addConstraint(Sketcher.Constraint("PointOnObject", 15, 1, -1))
sketch7.addConstraint(Sketcher.Constraint("Vertical", 5, 3, 0, 2))
sketch7.addConstraint(Sketcher.Constraint("Vertical", 0, 2, 2, 2))
sketch7.addConstraint(Sketcher.Constraint("Vertical", 11, 2, 13, 2))
sketch7.addConstraint(Sketcher.Constraint("Diameter", 6, Q("5 mm")))
sketch7.addConstraint(Sketcher.Constraint("Diameter", 7, Q("2.148042 mm")))
sketch7.addConstraint(Sketcher.Constraint("DistanceX", 0, 3, -1, 1, Q("31.476669 mm")))
sketch7.addConstraint(Sketcher.Constraint("DistanceY", 6, 3, -1, 1, Q("31.476669 mm")))
pad6 = body.newObject("PartDesign::Pad", "Pad005")
pad6.Profile = sketch7
pad6.Length = 3.9
pad6.Reversed = True

# Sketch on XY plane
sketch8 = body.newObject("Sketcher::SketchObject", "Sketch007")
sketch8.AttachmentSupport = (doc.getObject("XY_Plane"), [""])
sketch8.MapMode = "FlatFace"
sketch8.AttachmentOffset = App.Placement(Vector(0, 0, 5), App.Rotation())
sketch8.addGeometry(Part.Circle(Vector(0, -31.5, 0), Vector(0, 0, 1), 1.6), False)
sketch8.addGeometry(Part.Circle(Vector(-31.5, 0, 0), Vector(0, 0, 1), 1.6), False)
sketch8.addGeometry(Part.Circle(Vector(-31.5, 0, 0), Vector(0, 0, 1), 1.1), False)
sketch8.addGeometry(Part.Circle(Vector(0, 31.5, 0), Vector(0, 0, 1), 1.6), False)
sketch8.addGeometry(Part.Circle(Vector(31.5, 0, 0), Vector(0, 0, 1), 1.6), False)
sketch8.addConstraint(Sketcher.Constraint("Coincident", 2, 3, 1, 3))
sketch8.addConstraint(Sketcher.Constraint("Equal", 0, 1))
sketch8.addConstraint(Sketcher.Constraint("Equal", 1, 3))
sketch8.addConstraint(Sketcher.Constraint("Equal", 3, 4))
sketch8.addConstraint(Sketcher.Constraint("Symmetric", 0, 3, 3, 3, -1, 1))
sketch8.addConstraint(Sketcher.Constraint("Symmetric", 1, 3, 4, 3, -1, 1))
sketch8.addConstraint(Sketcher.Constraint("PointOnObject", 0, 3, -2))
sketch8.addConstraint(Sketcher.Constraint("PointOnObject", 1, 3, -1))
sketch8.addConstraint(Sketcher.Constraint("Diameter", 2, Q("2.148042 mm")))
sketch8.addConstraint(Sketcher.Constraint("Diameter", 0, Q("3.109997 mm")))
sketch8.addConstraint(Sketcher.Constraint("DistanceY", 0, 3, -1, 1, Q("31.476669 mm")))
sketch8.addConstraint(Sketcher.Constraint("DistanceX", 1, 3, -1, 1, Q("31.476669 mm")))
pocket1 = body.newObject("PartDesign::Pocket", "Pocket")
pocket1.Profile = sketch8
pocket1.Length = 1

doc.recompute()
